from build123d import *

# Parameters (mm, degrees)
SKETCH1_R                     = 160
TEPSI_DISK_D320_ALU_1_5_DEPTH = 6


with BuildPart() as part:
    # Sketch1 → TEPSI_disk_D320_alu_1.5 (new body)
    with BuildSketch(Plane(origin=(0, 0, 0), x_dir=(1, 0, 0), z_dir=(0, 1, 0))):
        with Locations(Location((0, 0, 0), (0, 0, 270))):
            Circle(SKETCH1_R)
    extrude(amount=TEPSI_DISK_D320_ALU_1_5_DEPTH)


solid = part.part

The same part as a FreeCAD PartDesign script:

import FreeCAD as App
import Part
import Sketcher
Q = App.Units.Quantity

doc = App.newDocument("Part")
body = doc.addObject("PartDesign::Body", "Body")

sketch1 = doc.addObject("Sketcher::SketchObject", "Sketch")
body.addObject(sketch1)
sketch1.AttachmentSupport = (doc.XZ_Plane, [""])
sketch1.MapMode = "FlatFace"
sketch1.addGeometry(Part.Circle(App.Vector(0, 0, 0), App.Vector(0, 0, 1), 160), False)
sketch1.addConstraint([
    Sketcher.Constraint("Coincident", 0, 3, -1, 1),
    Sketcher.Constraint("Diameter", 0, Q("320 mm")),
])
pad1 = doc.addObject("PartDesign::Pad", "Pad")
body.addObject(pad1)
pad1.Profile = sketch1
pad1.Length = 6
pad1.Reversed = True

doc.recompute()
